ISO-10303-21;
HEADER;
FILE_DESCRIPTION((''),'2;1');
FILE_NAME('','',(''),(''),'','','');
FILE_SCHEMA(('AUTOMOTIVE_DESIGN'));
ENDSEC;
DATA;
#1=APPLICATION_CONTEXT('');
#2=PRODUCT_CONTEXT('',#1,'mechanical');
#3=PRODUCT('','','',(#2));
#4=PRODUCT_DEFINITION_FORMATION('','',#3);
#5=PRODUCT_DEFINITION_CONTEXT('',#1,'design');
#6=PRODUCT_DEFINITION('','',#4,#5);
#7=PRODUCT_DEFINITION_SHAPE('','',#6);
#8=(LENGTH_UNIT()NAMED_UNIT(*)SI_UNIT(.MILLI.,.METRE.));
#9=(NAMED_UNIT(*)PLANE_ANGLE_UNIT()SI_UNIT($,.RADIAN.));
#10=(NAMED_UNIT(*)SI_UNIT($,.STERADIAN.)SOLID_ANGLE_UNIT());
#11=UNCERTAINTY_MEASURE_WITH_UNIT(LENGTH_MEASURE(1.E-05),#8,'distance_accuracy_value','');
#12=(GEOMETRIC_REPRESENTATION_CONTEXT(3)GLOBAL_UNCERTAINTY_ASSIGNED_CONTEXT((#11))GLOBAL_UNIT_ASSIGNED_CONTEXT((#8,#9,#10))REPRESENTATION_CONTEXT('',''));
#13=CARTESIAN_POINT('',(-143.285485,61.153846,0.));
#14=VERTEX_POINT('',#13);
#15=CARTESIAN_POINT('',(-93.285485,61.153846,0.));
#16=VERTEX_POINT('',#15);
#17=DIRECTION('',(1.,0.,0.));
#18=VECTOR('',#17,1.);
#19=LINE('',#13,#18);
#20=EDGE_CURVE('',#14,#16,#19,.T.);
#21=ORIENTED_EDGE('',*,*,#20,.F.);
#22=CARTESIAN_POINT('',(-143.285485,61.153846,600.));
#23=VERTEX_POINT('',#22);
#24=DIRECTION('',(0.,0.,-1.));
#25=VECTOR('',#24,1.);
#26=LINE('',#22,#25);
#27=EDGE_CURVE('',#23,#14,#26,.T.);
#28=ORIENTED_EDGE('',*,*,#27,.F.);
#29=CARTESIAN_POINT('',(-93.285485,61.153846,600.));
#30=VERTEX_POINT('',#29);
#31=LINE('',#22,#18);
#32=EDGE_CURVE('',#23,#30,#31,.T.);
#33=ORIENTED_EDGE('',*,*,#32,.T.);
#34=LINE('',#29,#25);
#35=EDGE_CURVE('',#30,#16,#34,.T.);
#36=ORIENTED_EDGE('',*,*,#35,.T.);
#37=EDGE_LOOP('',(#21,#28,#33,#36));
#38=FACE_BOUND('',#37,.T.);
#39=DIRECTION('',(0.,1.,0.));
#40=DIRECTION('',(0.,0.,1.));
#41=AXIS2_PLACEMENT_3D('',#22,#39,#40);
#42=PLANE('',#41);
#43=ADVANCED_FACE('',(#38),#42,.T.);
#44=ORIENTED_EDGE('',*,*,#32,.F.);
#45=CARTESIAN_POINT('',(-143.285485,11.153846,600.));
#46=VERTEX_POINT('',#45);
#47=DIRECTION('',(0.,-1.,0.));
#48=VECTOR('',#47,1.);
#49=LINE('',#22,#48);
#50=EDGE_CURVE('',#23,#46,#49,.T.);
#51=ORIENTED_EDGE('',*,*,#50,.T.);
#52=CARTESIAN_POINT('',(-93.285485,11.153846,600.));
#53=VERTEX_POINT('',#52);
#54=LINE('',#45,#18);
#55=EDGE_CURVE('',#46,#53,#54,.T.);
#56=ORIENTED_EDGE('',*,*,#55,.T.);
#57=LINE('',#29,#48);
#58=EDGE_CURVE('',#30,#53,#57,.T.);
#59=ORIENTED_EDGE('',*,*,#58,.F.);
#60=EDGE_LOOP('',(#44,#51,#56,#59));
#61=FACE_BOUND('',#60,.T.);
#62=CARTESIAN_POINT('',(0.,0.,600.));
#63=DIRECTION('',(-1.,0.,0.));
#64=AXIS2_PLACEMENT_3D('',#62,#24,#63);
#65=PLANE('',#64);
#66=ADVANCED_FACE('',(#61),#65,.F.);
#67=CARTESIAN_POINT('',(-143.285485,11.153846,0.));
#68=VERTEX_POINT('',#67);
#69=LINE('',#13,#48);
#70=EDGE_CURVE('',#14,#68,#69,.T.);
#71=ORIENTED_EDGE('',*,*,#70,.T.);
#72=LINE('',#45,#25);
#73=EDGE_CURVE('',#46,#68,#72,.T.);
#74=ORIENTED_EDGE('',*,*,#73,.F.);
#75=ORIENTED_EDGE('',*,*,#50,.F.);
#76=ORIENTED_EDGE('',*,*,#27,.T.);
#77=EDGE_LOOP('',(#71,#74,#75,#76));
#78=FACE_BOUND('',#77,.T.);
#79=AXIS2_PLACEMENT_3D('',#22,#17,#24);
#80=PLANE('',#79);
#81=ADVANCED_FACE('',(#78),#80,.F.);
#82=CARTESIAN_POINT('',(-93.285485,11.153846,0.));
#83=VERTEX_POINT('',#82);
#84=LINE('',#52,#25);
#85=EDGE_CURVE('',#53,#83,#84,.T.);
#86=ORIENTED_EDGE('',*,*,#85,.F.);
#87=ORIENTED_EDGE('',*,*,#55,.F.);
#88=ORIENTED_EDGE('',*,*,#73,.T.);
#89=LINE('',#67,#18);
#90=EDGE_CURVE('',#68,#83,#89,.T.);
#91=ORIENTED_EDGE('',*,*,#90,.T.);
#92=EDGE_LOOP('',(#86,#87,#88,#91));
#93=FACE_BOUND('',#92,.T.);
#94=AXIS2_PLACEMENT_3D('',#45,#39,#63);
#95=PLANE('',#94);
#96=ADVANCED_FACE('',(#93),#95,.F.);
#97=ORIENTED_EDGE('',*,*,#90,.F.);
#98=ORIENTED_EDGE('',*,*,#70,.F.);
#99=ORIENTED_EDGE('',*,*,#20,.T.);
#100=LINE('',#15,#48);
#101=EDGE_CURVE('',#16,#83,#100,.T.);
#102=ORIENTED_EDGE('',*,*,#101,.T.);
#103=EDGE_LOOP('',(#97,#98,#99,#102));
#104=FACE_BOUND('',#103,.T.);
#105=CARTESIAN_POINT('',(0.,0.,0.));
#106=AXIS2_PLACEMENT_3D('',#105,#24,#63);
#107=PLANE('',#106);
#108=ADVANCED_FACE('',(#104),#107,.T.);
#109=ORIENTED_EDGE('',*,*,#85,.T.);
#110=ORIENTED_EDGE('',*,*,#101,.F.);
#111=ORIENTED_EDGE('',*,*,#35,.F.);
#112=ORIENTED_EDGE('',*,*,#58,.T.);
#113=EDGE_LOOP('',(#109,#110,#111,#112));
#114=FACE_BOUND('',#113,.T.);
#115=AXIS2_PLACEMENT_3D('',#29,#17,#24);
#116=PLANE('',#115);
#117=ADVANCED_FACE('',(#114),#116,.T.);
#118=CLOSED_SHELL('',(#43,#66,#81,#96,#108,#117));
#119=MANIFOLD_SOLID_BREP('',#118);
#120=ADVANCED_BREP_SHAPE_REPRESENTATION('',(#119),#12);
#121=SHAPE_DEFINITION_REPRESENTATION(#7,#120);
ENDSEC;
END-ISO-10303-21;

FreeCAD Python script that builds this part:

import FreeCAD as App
import Part
import Sketcher

doc = App.newDocument("Part")
body = doc.addObject("PartDesign::Body", "Body")

sketch1 = body.newObject("Sketcher::SketchObject", "Sketch")
sketch1.AttachmentSupport = (doc.getObject("XY_Plane"), [""])
sketch1.MapMode = "FlatFace"
sketch1.addGeometry([
    Part.LineSegment(App.Vector(-143, 61, 0), App.Vector(-143, 11, 0)),
    Part.LineSegment(App.Vector(-143, 11, 0), App.Vector(-93, 11, 0)),
    Part.LineSegment(App.Vector(-93, 11, 0), App.Vector(-93, 61, 0)),
    Part.LineSegment(App.Vector(-93, 61, 0), App.Vector(-143, 61, 0)),
], False)
sketch1.addConstraint([
    Sketcher.Constraint("Coincident", 0, 2, 1, 1),
    Sketcher.Constraint("Coincident", 1, 2, 2, 1),
    Sketcher.Constraint("Coincident", 2, 2, 3, 1),
    Sketcher.Constraint("Coincident", 3, 2, 0, 1),
    Sketcher.Constraint("Vertical", 0),
    Sketcher.Constraint("Horizontal", 1),
    Sketcher.Constraint("Vertical", 2),
    Sketcher.Constraint("Horizontal", 3),
    Sketcher.Constraint("Equal", 3, 0),
    Sketcher.Constraint("DistanceX", 1, 1, 1, 2, 50.0),
    Sketcher.Constraint("DistanceX", 0, 2, -1, 1, 143.285485),
    Sketcher.Constraint("DistanceY", -1, 1, 0, 2, 11.153846),
])
pad1 = body.newObject("PartDesign::Pad", "Pad")
pad1.Profile = sketch1
pad1.Length = 600

doc.recompute()
